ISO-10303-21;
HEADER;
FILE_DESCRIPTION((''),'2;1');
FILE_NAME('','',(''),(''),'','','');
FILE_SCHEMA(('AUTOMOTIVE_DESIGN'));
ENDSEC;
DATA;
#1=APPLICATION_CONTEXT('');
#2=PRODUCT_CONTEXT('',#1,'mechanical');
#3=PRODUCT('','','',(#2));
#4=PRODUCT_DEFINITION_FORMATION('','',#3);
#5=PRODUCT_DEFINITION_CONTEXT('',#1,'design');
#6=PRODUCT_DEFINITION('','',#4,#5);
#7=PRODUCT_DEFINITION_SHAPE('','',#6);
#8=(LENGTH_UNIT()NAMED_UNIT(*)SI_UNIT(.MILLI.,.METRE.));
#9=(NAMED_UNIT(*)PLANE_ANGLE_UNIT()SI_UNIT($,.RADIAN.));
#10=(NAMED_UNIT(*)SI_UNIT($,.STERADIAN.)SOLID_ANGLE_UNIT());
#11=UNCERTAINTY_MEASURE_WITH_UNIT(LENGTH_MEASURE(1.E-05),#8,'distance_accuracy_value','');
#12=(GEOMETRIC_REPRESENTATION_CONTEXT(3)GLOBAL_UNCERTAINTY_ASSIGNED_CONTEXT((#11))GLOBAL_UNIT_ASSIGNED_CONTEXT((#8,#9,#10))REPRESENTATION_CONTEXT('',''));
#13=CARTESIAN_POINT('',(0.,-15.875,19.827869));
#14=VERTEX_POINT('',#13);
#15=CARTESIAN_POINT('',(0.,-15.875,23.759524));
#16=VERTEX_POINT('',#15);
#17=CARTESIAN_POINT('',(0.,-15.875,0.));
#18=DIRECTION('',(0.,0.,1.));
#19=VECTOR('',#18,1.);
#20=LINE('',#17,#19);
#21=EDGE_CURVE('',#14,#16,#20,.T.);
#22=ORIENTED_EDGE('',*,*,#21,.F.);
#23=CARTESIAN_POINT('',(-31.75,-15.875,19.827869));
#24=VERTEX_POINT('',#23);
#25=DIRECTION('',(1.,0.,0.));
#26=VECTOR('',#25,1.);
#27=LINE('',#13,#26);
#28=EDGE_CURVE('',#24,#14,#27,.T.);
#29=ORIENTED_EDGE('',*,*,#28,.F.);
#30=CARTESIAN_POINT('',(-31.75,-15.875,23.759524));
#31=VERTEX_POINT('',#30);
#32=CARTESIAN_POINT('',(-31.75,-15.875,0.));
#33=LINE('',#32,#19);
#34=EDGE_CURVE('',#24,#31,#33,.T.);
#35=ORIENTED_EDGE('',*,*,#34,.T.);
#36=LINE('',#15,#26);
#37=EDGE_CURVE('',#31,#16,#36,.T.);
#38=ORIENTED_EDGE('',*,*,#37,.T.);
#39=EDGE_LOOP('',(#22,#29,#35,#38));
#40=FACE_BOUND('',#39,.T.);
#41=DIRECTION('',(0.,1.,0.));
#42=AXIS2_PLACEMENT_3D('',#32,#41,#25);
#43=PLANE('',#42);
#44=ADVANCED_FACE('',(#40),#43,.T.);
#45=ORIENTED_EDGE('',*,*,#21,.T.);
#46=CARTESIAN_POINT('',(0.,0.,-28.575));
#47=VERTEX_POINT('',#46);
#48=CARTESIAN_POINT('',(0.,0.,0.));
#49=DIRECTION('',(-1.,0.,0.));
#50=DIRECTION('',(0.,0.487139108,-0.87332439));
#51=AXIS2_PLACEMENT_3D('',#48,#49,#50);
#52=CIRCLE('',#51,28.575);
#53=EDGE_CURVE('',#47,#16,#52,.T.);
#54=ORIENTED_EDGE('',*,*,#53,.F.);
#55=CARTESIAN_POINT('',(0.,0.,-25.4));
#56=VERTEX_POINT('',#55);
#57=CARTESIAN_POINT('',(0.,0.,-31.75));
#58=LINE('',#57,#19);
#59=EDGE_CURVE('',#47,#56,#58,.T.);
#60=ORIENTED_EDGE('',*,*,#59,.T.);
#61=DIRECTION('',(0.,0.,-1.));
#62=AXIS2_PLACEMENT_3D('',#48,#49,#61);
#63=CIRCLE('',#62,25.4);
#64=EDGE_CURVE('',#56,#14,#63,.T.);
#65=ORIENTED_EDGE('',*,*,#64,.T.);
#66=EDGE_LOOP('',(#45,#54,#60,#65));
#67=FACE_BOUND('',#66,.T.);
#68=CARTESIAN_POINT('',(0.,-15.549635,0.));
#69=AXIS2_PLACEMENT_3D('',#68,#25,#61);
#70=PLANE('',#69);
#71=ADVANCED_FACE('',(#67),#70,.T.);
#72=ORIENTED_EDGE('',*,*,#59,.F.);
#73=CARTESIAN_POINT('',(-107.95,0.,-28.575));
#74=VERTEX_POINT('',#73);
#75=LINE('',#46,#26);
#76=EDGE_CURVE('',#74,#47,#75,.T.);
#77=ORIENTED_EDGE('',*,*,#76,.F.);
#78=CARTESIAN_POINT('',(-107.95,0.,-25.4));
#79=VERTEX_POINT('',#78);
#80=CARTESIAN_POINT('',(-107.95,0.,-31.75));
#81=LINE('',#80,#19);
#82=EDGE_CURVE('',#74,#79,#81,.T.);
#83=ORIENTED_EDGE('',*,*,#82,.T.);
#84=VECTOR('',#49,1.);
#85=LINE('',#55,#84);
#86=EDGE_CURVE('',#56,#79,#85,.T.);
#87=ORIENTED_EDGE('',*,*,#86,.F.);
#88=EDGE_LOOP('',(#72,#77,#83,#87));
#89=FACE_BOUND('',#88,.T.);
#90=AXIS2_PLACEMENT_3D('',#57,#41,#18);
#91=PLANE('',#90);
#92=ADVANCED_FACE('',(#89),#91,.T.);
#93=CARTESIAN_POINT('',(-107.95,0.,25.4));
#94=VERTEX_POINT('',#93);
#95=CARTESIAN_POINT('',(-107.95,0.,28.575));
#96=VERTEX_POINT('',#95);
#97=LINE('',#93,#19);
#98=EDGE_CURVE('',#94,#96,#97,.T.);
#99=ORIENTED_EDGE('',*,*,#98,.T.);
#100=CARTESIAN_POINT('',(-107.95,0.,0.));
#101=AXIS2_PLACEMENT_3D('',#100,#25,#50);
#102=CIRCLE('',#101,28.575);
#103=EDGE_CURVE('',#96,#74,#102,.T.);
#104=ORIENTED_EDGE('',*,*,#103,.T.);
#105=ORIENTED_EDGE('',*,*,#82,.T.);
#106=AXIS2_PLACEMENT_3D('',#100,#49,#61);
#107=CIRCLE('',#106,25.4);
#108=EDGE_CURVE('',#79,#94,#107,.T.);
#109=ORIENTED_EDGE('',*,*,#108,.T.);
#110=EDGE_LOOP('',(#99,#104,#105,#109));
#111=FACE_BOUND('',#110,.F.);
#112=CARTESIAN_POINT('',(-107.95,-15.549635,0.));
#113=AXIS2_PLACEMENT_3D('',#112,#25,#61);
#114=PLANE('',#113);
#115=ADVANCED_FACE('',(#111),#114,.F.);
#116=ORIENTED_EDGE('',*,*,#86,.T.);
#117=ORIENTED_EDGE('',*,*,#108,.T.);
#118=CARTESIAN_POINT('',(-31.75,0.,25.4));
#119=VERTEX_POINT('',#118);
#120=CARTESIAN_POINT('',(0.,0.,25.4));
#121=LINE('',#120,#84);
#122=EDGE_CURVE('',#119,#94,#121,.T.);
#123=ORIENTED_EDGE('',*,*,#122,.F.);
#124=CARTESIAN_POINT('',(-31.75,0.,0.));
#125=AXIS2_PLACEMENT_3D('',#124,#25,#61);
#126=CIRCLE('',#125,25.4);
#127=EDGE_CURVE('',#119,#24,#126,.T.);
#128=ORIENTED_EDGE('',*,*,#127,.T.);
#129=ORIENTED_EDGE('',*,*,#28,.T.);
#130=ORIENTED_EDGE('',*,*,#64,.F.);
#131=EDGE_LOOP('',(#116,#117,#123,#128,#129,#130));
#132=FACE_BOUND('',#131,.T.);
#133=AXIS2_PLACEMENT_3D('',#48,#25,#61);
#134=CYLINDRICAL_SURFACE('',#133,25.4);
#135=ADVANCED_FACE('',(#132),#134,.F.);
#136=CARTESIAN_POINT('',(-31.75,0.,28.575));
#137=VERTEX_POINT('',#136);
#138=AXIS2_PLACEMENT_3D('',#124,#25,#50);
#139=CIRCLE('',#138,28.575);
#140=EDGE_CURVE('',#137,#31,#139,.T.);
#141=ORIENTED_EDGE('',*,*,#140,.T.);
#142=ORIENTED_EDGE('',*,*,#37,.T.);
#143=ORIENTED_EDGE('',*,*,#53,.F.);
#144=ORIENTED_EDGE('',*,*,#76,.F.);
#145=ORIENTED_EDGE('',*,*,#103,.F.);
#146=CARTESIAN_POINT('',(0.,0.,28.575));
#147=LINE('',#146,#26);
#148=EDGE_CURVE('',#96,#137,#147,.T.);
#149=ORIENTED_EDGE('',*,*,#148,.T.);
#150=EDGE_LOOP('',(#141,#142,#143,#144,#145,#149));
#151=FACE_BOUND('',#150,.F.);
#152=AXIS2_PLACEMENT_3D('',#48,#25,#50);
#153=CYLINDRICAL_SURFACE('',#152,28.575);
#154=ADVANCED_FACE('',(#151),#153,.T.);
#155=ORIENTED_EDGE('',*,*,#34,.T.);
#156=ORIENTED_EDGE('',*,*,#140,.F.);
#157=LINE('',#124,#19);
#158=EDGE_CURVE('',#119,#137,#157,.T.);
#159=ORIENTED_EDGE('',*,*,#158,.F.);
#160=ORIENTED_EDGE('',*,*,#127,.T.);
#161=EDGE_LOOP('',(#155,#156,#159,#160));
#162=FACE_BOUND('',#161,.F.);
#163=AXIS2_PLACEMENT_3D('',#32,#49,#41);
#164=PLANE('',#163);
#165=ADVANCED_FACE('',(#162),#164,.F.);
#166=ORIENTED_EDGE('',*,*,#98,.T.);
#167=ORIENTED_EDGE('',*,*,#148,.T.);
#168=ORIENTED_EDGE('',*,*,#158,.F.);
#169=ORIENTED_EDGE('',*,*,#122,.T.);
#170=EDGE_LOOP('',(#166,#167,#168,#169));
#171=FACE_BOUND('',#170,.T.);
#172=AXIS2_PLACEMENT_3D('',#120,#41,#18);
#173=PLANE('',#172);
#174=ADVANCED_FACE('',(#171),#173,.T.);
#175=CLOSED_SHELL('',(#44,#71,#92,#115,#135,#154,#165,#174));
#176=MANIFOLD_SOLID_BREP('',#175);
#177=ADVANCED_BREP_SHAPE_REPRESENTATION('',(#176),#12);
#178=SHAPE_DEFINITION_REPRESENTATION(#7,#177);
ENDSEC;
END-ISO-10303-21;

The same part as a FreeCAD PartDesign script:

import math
import FreeCAD as App
import Part
import Sketcher

V = App.Vector
Q = App.Units.Quantity

doc = App.newDocument("Part")
body = doc.addObject("PartDesign::Body", "Body")

sketch1 = doc.addObject("Sketcher::SketchObject", "Sketch")
body.addObject(sketch1)
sketch1.AttachmentSupport = (doc.YZ_Plane, [""])
sketch1.MapMode = "FlatFace"
sketch1.addGeometry([
    Part.LineSegment(V(0, 25.4, 0), V(0, 31.75, 0)),
    Part.ArcOfCircle(Part.Circle(V(0, 0, 0), V(0, 0, 1), 31.75), math.radians(90), math.radians(270)),
    Part.LineSegment(V(0, -31.75, 0), V(0, -25.4, 0)),
    Part.ArcOfCircle(Part.Circle(V(0, 0, 0), V(0, 0, 1), 25.4), math.radians(90), math.radians(270)),
], False)
sketch1.addConstraint([
    Sketcher.Constraint("Coincident", 0, 2, 1, 1),
    Sketcher.Constraint("Coincident", 1, 2, 2, 1),
    Sketcher.Constraint("Coincident", 2, 2, 3, 2),
    Sketcher.Constraint("Coincident", 3, 1, 0, 1),
    Sketcher.Constraint("Vertical", 0),
    Sketcher.Constraint("Vertical", 2),
    Sketcher.Constraint("Coincident", 1, 3, -1, 1),
    Sketcher.Constraint("Coincident", 3, 3, -1, 1),
    Sketcher.Constraint("PointOnObject", 0, 2, -2),
    Sketcher.Constraint("PointOnObject", 1, 2, -2),
    Sketcher.Constraint("Radius", 3, Q("1 in")),
    Sketcher.Constraint("Radius", 1, Q("1.25 in")),
])
pad1 = doc.addObject("PartDesign::Pad", "Pad")
body.addObject(pad1)
pad1.Profile = sketch1
pad1.Length = Q("4.25 in")
pad1.Reversed = True

sketch2 = doc.addObject("Sketcher::SketchObject", "Sketch001")
body.addObject(sketch2)
sketch2.AttachmentSupport = (doc.XY_Plane, [""])
sketch2.MapMode = "FlatFace"
sketch2.addGeometry([
    Part.LineSegment(V(-31.75, 0, 0), V(-31.75, -15.875, 0)),
    Part.LineSegment(V(-31.75, -15.875, 0), V(0, -15.875, 0)),
    Part.LineSegment(V(0, -15.875, 0), V(0, 0, 0)),
    Part.LineSegment(V(0, 0, 0), V(-31.75, 0, 0)),
], False)
sketch2.addConstraint([
    Sketcher.Constraint("Coincident", 0, 2, 1, 1),
    Sketcher.Constraint("Coincident", 1, 2, 2, 1),
    Sketcher.Constraint("Coincident", 2, 2, 3, 1),
    Sketcher.Constraint("Coincident", 3, 2, 0, 1),
    Sketcher.Constraint("Vertical", 0),
    Sketcher.Constraint("Horizontal", 1),
    Sketcher.Constraint("Vertical", 2),
    Sketcher.Constraint("Horizontal", 3),
    Sketcher.Constraint("Coincident", 2, 2, -1, 1),
    Sketcher.Constraint("DistanceX", 1, 1, 1, 2, Q("1.25 in")),
    Sketcher.Constraint("DistanceY", 0, 2, 0, 1, Q("0.625 in")),
])
pocket1 = doc.addObject("PartDesign::Pocket", "Pocket")
body.addObject(pocket1)
pocket1.Profile = sketch2
pocket1.Length = Q("5 in")
pocket1.Reversed = True

sketch3 = doc.addObject("Sketcher::SketchObject", "Sketch002")
body.addObject(sketch3)
sketch3.AttachmentSupport = (doc.YZ_Plane, [""])
sketch3.MapMode = "FlatFace"
sketch3.addGeometry([
    Part.LineSegment(V(13.92, 45.67, 0), V(-45.67, 45.67, 0)),
    Part.LineSegment(V(-45.67, 45.67, 0), V(-45.67, -45.67, 0)),
    Part.LineSegment(V(-45.67, -45.67, 0), V(13.92, -45.67, 0)),
    Part.LineSegment(V(13.92, -45.67, 0), V(13.92, -24.955244, 0)),
    Part.ArcOfCircle(Part.Circle(V(0, 0, 0), V(0, 0, 1), 28.575), math.radians(60.847284), math.radians(299.152716)),
    Part.LineSegment(V(13.92, 24.955244, 0), V(13.92, 45.67, 0)),
], False)
sketch3.addConstraint([
    Sketcher.Constraint("Coincident", 0, 2, 1, 1),
    Sketcher.Constraint("Coincident", 1, 2, 2, 1),
    Sketcher.Constraint("Coincident", 2, 2, 3, 1),
    Sketcher.Constraint("Coincident", 3, 2, 4, 2),
    Sketcher.Constraint("Coincident", 4, 1, 5, 1),
    Sketcher.Constraint("Coincident", 5, 2, 0, 1),
    Sketcher.Constraint("Horizontal", 0),
    Sketcher.Constraint("Vertical", 1),
    Sketcher.Constraint("Horizontal", 2),
    Sketcher.Constraint("Vertical", 3),
    Sketcher.Constraint("Vertical", 5),
    Sketcher.Constraint("Coincident", 4, 3, -1, 1),
    Sketcher.Constraint("Symmetric", 2, 2, 5, 2, -1),
    Sketcher.Constraint("Radius", 4, Q("1.125 in")),
    Sketcher.Constraint("DistanceX", 0, 2, 0, 1, 59.59),
    Sketcher.Constraint("DistanceY", 1, 2, 1, 1, 91.34),
    Sketcher.Constraint("DistanceX", 0, 2, -1, 1, 45.67),
])
pocket2 = doc.addObject("PartDesign::Pocket", "Pocket001")
body.addObject(pocket2)
pocket2.Profile = sketch3
pocket2.Type = "ThroughAll"

doc.recompute()
